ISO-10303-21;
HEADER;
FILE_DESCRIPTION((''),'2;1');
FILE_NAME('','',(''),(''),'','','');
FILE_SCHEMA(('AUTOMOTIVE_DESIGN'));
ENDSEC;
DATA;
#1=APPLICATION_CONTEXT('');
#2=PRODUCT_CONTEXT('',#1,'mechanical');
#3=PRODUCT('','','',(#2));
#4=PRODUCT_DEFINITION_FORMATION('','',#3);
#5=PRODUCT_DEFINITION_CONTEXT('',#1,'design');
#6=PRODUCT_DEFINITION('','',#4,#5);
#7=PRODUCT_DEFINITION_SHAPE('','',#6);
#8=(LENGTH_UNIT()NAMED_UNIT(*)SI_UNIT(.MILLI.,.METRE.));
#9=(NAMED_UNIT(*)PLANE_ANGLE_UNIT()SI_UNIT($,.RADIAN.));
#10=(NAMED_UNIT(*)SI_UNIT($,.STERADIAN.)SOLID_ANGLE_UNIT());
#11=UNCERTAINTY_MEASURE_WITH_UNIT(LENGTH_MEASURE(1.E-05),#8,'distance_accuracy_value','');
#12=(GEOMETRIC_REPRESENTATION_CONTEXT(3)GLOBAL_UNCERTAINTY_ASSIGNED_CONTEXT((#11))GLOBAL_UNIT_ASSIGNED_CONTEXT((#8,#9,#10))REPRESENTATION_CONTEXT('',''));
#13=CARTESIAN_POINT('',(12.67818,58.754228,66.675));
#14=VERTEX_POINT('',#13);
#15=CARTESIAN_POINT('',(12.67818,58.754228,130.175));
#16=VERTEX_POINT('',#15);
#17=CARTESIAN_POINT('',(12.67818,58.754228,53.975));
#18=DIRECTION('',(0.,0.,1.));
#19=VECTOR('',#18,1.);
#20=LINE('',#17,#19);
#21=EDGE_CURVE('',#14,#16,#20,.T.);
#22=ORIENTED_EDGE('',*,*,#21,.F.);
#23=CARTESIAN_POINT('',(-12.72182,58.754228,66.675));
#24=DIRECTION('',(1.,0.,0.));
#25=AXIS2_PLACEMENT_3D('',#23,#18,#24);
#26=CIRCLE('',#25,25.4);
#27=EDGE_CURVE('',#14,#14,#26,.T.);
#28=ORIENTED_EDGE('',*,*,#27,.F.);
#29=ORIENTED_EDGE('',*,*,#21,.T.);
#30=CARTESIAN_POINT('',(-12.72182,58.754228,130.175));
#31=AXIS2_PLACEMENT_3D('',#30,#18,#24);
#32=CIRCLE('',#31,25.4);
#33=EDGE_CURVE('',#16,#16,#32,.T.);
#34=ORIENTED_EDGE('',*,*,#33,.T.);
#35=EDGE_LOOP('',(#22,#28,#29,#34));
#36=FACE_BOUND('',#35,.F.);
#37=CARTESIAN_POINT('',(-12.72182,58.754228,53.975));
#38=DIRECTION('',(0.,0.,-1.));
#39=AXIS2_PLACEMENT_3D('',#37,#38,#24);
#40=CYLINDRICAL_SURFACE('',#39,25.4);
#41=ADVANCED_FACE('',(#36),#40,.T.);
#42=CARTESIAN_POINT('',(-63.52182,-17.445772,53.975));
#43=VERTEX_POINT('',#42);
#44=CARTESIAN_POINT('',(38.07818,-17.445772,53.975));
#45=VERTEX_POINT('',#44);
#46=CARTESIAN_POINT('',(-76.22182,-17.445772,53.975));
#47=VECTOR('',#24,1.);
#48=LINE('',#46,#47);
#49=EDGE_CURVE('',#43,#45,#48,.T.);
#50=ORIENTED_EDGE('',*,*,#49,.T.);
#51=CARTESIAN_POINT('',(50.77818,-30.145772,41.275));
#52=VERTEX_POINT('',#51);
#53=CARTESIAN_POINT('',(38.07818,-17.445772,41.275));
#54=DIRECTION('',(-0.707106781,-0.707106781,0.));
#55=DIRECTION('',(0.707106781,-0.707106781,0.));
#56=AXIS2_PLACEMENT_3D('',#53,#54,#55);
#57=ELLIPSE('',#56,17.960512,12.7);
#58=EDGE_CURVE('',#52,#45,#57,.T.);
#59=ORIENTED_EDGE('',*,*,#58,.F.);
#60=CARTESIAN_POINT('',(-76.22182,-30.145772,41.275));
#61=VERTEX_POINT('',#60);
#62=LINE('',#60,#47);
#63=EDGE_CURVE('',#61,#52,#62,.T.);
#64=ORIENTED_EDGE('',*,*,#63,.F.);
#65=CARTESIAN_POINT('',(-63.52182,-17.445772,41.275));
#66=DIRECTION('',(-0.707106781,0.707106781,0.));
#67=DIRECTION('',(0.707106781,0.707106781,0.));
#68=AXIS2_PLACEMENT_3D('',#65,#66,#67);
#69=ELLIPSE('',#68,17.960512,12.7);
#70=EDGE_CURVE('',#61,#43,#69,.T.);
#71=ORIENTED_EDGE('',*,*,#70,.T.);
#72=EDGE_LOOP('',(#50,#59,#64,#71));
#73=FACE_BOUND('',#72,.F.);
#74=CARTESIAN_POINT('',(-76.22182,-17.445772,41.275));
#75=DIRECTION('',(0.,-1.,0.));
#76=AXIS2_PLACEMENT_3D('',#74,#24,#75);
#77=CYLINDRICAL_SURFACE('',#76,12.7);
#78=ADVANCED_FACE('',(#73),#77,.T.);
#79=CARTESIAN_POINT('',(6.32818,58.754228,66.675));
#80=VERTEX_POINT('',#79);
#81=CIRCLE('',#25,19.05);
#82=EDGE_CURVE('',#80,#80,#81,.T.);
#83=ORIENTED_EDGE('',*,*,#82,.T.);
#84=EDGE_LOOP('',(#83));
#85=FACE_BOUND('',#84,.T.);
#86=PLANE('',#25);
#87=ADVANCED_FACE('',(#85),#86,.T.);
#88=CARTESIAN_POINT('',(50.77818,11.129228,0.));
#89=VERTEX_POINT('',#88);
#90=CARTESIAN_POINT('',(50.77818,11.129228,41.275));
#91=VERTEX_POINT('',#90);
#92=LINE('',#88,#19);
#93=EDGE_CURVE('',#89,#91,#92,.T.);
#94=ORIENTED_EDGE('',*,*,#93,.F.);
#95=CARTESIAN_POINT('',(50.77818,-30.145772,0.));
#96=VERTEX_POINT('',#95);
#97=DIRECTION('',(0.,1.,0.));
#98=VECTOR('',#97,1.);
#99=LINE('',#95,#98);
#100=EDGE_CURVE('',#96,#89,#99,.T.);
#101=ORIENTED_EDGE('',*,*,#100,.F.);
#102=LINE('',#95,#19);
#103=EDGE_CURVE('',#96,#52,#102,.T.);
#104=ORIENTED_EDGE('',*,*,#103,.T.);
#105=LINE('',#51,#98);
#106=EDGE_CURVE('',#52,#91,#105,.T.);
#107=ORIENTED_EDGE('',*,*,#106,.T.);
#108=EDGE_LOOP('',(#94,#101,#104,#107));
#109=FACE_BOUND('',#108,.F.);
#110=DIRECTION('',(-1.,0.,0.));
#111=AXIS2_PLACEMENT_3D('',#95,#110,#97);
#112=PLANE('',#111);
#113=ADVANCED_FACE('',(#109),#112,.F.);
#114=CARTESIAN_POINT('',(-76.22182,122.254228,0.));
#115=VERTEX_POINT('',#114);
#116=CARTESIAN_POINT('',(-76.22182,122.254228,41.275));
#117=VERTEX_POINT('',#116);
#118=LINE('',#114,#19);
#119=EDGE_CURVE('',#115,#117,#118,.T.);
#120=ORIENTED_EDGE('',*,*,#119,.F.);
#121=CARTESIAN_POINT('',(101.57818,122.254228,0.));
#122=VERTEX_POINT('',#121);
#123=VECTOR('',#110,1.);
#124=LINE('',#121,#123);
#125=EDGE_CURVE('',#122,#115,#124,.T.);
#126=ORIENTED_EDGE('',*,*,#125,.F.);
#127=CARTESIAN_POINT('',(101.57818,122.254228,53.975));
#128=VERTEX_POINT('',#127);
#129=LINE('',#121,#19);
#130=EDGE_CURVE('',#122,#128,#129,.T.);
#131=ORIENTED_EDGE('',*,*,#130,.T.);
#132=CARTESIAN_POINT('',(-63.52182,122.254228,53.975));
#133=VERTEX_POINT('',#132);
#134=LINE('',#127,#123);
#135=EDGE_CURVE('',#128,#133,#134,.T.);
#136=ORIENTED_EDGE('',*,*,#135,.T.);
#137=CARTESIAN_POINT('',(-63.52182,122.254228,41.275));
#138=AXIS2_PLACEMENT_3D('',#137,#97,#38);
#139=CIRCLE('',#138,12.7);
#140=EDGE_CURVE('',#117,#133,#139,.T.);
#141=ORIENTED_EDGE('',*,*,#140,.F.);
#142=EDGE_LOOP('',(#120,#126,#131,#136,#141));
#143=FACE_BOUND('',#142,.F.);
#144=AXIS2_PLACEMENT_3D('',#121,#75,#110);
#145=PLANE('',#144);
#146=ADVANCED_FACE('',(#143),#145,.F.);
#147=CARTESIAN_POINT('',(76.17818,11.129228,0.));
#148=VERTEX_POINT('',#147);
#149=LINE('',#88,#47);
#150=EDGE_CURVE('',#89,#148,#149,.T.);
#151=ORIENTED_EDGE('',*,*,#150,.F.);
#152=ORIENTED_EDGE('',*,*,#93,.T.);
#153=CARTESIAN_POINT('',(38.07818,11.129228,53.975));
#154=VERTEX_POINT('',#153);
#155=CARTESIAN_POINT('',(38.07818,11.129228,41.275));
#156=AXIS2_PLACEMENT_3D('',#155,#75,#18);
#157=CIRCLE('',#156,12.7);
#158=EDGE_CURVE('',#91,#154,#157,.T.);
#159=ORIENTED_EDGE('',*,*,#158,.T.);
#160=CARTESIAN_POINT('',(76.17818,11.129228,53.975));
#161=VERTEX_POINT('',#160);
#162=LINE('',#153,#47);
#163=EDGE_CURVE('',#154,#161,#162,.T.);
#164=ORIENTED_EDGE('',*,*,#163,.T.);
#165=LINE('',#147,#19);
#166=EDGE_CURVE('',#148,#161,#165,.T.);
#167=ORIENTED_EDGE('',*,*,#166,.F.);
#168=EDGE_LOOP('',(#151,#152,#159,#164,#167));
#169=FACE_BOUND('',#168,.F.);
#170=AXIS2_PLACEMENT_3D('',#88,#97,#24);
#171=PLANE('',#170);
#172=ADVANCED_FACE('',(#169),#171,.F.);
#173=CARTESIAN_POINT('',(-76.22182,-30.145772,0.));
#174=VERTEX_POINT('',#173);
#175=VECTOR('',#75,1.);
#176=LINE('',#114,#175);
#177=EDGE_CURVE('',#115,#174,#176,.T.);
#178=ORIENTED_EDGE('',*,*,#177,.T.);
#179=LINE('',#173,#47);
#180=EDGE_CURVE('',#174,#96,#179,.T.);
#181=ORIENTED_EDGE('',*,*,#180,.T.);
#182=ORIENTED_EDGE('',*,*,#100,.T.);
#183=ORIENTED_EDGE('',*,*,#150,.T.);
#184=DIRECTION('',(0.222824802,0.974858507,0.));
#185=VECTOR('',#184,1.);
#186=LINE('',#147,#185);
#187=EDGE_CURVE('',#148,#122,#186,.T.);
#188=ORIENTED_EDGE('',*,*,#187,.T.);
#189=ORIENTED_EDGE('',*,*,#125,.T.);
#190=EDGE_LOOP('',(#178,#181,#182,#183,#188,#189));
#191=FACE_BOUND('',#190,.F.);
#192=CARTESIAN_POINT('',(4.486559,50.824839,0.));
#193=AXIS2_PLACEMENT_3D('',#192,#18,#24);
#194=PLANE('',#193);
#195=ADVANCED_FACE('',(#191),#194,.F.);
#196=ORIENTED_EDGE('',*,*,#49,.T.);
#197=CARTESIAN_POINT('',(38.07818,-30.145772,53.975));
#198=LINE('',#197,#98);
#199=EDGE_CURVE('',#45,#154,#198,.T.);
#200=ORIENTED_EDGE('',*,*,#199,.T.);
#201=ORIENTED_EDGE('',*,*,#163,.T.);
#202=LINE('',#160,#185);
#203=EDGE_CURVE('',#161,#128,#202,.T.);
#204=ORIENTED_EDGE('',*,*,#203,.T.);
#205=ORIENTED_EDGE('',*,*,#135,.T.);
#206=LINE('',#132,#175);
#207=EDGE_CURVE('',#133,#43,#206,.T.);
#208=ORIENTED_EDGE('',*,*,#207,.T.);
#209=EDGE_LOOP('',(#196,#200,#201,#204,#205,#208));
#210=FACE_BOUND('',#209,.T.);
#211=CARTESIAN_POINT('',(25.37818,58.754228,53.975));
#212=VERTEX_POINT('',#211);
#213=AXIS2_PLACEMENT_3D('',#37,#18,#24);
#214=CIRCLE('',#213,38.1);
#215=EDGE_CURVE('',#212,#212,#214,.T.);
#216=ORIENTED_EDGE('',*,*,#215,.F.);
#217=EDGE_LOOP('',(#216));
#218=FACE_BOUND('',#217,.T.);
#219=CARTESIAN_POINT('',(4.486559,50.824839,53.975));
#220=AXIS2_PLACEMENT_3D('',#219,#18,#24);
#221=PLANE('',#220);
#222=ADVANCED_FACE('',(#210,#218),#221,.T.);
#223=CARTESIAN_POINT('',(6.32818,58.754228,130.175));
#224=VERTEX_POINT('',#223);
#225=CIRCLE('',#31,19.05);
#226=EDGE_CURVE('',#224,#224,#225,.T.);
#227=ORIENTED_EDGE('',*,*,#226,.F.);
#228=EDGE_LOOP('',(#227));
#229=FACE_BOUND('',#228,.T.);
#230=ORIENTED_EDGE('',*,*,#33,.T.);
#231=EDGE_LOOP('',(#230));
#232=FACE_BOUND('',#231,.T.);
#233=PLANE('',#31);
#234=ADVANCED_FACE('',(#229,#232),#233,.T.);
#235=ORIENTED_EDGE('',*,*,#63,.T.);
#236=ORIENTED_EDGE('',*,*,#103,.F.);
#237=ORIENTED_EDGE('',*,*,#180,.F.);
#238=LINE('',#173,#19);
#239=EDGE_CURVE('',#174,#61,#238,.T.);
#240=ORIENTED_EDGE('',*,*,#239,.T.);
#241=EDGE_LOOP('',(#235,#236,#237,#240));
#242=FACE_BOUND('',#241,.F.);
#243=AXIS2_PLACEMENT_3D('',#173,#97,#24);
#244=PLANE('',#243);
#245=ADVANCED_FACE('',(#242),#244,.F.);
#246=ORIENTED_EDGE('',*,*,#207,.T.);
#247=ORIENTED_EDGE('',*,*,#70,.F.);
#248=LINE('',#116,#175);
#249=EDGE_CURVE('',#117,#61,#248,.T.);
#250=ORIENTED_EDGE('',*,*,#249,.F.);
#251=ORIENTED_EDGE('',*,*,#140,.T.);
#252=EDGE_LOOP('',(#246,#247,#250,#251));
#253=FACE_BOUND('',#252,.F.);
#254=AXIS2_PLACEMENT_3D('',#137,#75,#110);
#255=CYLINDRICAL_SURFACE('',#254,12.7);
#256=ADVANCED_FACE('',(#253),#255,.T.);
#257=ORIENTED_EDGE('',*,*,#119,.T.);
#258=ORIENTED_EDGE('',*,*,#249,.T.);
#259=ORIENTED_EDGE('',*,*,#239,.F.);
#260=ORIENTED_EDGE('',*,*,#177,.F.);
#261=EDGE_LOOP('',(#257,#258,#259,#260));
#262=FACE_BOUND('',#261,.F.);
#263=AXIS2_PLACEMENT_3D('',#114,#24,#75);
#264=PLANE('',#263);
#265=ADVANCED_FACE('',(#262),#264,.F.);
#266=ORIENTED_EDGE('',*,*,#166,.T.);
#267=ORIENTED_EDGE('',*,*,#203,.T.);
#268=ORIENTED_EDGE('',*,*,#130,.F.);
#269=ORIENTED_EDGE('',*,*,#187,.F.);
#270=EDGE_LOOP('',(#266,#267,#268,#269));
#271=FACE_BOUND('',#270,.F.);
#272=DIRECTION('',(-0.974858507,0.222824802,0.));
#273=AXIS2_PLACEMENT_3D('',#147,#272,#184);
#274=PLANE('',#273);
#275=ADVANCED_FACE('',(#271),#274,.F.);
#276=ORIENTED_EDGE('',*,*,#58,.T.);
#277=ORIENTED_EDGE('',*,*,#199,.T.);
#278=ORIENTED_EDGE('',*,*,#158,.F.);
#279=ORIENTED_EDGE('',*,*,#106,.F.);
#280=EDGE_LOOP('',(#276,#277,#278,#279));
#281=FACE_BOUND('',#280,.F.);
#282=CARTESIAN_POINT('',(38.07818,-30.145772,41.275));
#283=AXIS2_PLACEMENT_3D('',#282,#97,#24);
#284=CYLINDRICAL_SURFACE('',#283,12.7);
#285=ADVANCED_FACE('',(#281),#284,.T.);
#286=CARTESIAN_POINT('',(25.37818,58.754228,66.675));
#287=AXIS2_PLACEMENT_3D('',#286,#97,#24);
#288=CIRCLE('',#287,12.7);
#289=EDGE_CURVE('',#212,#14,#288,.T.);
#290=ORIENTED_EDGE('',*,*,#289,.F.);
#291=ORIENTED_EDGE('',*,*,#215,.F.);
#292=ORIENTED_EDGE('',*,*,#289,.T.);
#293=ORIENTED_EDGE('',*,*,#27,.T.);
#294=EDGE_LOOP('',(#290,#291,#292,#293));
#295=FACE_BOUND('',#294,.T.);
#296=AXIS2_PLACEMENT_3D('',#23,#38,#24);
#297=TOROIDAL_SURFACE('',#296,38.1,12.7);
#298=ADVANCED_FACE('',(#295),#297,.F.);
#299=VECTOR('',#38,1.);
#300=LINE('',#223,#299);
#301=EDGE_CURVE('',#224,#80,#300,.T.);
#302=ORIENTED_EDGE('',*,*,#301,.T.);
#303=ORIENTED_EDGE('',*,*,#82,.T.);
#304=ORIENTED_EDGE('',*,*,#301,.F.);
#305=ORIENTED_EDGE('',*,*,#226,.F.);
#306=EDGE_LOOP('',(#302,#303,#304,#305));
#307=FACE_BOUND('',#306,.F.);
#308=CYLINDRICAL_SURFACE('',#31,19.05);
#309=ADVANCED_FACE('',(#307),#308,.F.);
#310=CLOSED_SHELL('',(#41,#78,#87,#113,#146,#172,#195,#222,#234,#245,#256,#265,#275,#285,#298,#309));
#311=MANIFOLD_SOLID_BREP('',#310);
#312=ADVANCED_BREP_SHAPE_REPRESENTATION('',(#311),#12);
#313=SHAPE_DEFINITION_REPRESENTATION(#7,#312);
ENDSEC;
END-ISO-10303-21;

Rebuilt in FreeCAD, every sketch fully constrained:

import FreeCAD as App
import Part
import Sketcher
from FreeCAD import Vector
Q = App.Units.Quantity


def edges_at(feature, points):
    """Names of the edges that pass closest to the given points."""
    edges = feature.Shape.Edges
    near = lambda p: min(range(len(edges)), key=lambda i: edges[i].distToShape(Part.Vertex(*p))[0])
    return sorted({f"Edge{near(p) + 1}" for p in points})

doc = App.newDocument("Part")
body = doc.addObject("PartDesign::Body", "Body")

# Sketch on XY plane
sketch1 = body.newObject("Sketcher::SketchObject", "Sketch")
sketch1.AttachmentSupport = (doc.getObject("XY_Plane"), [""])
sketch1.MapMode = "FlatFace"
sketch1.addGeometry([
    Part.LineSegment(Vector(-76.22182, -30.145772, 0), Vector(50.77818, -30.145772, 0)),  # 0
    Part.LineSegment(Vector(50.77818, -30.145772, 0), Vector(50.77818, 11.129228, 0)),  # 1
    Part.LineSegment(Vector(50.77818, 11.129228, 0), Vector(76.17818, 11.129228, 0)),  # 2
    Part.LineSegment(Vector(76.17818, 11.129228, 0), Vector(101.57818, 122.254228, 0)),  # 3
    Part.LineSegment(Vector(101.57818, 122.254228, 0), Vector(-76.22182, 122.254228, 0)),  # 4
    Part.LineSegment(Vector(-76.22182, 122.254228, 0), Vector(-76.22182, -30.145772, 0)),  # 5
], False)
sketch1.addConstraint([
    Sketcher.Constraint("Coincident", 0, 2, 1, 1),
    Sketcher.Constraint("Coincident", 1, 2, 2, 1),
    Sketcher.Constraint("Coincident", 2, 2, 3, 1),
    Sketcher.Constraint("Coincident", 3, 2, 4, 1),
    Sketcher.Constraint("Coincident", 4, 2, 5, 1),
    Sketcher.Constraint("Coincident", 5, 2, 0, 1),
    Sketcher.Constraint("Horizontal", 0),
    Sketcher.Constraint("Vertical", 1),
    Sketcher.Constraint("Horizontal", 2),
    Sketcher.Constraint("Horizontal", 4),
    Sketcher.Constraint("Vertical", 5),
    Sketcher.Constraint("DistanceX", 0, 1, 0, 2, Q("5 in")),
    Sketcher.Constraint("DistanceX", 2, 1, 2, 2, Q("1 in")),
    Sketcher.Constraint("DistanceX", 4, 2, 4, 1, Q("7 in")),
    Sketcher.Constraint("DistanceY", 5, 2, 5, 1, Q("6 in")),
    Sketcher.Constraint("DistanceY", 1, 1, 1, 2, Q("1.625 in")),
    Sketcher.Constraint("DistanceX", -1, 1, 0, 2, 50.77818),
    Sketcher.Constraint("DistanceY", 0, 2, -1, 1, 30.145772),
])
pad1 = body.newObject("PartDesign::Pad", "Pad")
pad1.Profile = sketch1
pad1.Length = Q("2.125 in")

# Sketch on XY plane
sketch2 = body.newObject("Sketcher::SketchObject", "Sketch001")
sketch2.AttachmentSupport = (doc.getObject("XY_Plane"), [""])
sketch2.MapMode = "FlatFace"
sketch2.AttachmentOffset = App.Placement(Vector(0, 0, 2.125 * 25.4), App.Rotation())
sketch2.addGeometry(Part.Circle(Vector(-12.72182, 58.754228, 0), Vector(0, 0, 1), 25.4), False)
sketch2.addConstraint([
    Sketcher.Constraint("Diameter", 0, Q("2 in")),
    Sketcher.Constraint("DistanceX", 0, 3, -1, 1, 12.72182),
    Sketcher.Constraint("DistanceY", -1, 1, 0, 3, 58.754228),
])
pad2 = body.newObject("PartDesign::Pad", "Pad001")
pad2.Profile = sketch2
pad2.Length = Q("3 in")

# Sketch on XY plane
sketch3 = body.newObject("Sketcher::SketchObject", "Sketch002")
sketch3.AttachmentSupport = (doc.getObject("XY_Plane"), [""])
sketch3.MapMode = "FlatFace"
sketch3.AttachmentOffset = App.Placement(Vector(0, 0, 5.125 * 25.4), App.Rotation())
sketch3.addGeometry(Part.Circle(Vector(-12.72182, 58.754228, 0), Vector(0, 0, 1), 19.05), False)
sketch3.addConstraint([
    Sketcher.Constraint("Diameter", 0, Q("1.5 in")),
    Sketcher.Constraint("DistanceX", 0, 3, -1, 1, 12.72182),
    Sketcher.Constraint("DistanceY", -1, 1, 0, 3, 58.754228),
])
pocket1 = body.newObject("PartDesign::Pocket", "Pocket")
pocket1.Profile = sketch3
pocket1.Length = Q("2.5 in")
doc.recompute()

fillet = body.newObject("PartDesign::Fillet", "Fillet")
fillet.Base = (pocket1, edges_at(pocket1, [
    (-12.722, -30.146, 53.975),
    (50.778, -9.508, 53.975),
    (-76.222, 46.054, 53.975),
    (-38.122, 58.754, 53.975),
]))
fillet.Radius = Q("0.5 in")

doc.recompute()
